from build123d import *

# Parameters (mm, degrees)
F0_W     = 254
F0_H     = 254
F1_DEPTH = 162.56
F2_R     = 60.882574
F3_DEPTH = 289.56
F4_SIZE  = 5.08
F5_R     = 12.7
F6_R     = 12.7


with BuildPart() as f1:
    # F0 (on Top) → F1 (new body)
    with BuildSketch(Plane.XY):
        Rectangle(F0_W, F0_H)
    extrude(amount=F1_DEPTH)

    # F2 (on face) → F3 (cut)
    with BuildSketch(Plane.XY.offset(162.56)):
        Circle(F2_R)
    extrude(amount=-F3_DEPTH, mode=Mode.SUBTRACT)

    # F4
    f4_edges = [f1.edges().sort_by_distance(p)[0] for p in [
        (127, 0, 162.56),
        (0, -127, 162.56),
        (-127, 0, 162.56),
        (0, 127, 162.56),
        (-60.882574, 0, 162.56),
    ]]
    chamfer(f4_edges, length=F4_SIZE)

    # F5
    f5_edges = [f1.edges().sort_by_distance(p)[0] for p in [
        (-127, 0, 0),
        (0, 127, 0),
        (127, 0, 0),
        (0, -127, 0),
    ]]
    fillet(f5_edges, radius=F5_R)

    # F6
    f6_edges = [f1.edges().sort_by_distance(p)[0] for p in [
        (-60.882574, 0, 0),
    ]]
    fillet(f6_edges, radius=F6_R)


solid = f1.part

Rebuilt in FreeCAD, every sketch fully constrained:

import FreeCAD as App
import Part
import Sketcher
from FreeCAD import Vector
Q = App.Units.Quantity


def edges_at(feature, points):
    """Names of the edges that pass closest to the given points."""
    edges = feature.Shape.Edges
    near = lambda p: min(range(len(edges)), key=lambda i: edges[i].distToShape(Part.Vertex(*p))[0])
    return sorted({f"Edge{near(p) + 1}" for p in points})


def add_polygon(sketch, points):
    """Adds a closed chain of lines whose ends are joined by coincident constraints."""
    first, n = sketch.GeometryCount, len(points)
    for a, b in zip(points, points[1:] + points[:1]):
        sketch.addGeometry(Part.LineSegment(App.Vector(*a, 0), App.Vector(*b, 0)), False)
    for i in range(n):
        sketch.addConstraint(Sketcher.Constraint("Coincident", first + i, 2, first + (i + 1) % n, 1))

doc = App.newDocument("Part")
body = doc.addObject("PartDesign::Body", "Body")

sketch1 = doc.addObject("Sketcher::SketchObject", "Sketch")
body.addObject(sketch1)
sketch1.AttachmentSupport = (doc.XY_Plane, [""])
sketch1.MapMode = "FlatFace"
add_polygon(sketch1, [(-127, 127), (-127, -127), (127, -127), (127, 127)])
sketch1.addConstraint([
    Sketcher.Constraint("Vertical", 0),
    Sketcher.Constraint("Horizontal", 1),
    Sketcher.Constraint("Vertical", 2),
    Sketcher.Constraint("Horizontal", 3),
    Sketcher.Constraint("Symmetric", 0, 2, 2, 2, -1, 1),
    Sketcher.Constraint("Equal", 3, 0),
    Sketcher.Constraint("DistanceX", 1, 1, 1, 2, Q("10 in")),
])
pad1 = doc.addObject("PartDesign::Pad", "Pad")
body.addObject(pad1)
pad1.Profile = sketch1
pad1.Length = Q("6.4 in")

sketch2 = doc.addObject("Sketcher::SketchObject", "Sketch001")
body.addObject(sketch2)
sketch2.AttachmentSupport = (doc.XY_Plane, [""])
sketch2.MapMode = "FlatFace"
sketch2.AttachmentOffset = App.Placement(Vector(0, 0, 6.4 * 25.4), App.Rotation())
sketch2.addGeometry(Part.Circle(Vector(0, 0, 0), Vector(0, 0, 1), 60.882574), False)
sketch2.addConstraint([
    Sketcher.Constraint("Coincident", 0, 3, -1, 1),
    Sketcher.Constraint("Diameter", 0, 121.765148),
])
pocket1 = doc.addObject("PartDesign::Pocket", "Pocket")
body.addObject(pocket1)
pocket1.Profile = sketch2
pocket1.Length = Q("11.4 in")
doc.recompute()

chamfer = doc.addObject("PartDesign::Chamfer", "Chamfer")
body.addObject(chamfer)
chamfer.Base = (pocket1, edges_at(pocket1, [
    (127, 0, 162.56),
    (0, -127, 162.56),
    (-127, 0, 162.56),
    (0, 127, 162.56),
    (-60.883, 0, 162.56),
]))
chamfer.Size = Q("0.2 in")
doc.recompute()

fillet = doc.addObject("PartDesign::Fillet", "Fillet")
body.addObject(fillet)
fillet.Base = (chamfer, edges_at(chamfer, [
    (-127, 0, 0),
    (0, 127, 0),
    (127, 0, 0),
    (0, -127, 0),
]))
fillet.Radius = Q("0.5 in")
doc.recompute()

fillet2 = doc.addObject("PartDesign::Fillet", "Fillet001")
body.addObject(fillet2)
fillet2.Base = (fillet, edges_at(fillet, [(-60.883, 0, 0)]))
fillet2.Radius = Q("0.5 in")

doc.recompute()
